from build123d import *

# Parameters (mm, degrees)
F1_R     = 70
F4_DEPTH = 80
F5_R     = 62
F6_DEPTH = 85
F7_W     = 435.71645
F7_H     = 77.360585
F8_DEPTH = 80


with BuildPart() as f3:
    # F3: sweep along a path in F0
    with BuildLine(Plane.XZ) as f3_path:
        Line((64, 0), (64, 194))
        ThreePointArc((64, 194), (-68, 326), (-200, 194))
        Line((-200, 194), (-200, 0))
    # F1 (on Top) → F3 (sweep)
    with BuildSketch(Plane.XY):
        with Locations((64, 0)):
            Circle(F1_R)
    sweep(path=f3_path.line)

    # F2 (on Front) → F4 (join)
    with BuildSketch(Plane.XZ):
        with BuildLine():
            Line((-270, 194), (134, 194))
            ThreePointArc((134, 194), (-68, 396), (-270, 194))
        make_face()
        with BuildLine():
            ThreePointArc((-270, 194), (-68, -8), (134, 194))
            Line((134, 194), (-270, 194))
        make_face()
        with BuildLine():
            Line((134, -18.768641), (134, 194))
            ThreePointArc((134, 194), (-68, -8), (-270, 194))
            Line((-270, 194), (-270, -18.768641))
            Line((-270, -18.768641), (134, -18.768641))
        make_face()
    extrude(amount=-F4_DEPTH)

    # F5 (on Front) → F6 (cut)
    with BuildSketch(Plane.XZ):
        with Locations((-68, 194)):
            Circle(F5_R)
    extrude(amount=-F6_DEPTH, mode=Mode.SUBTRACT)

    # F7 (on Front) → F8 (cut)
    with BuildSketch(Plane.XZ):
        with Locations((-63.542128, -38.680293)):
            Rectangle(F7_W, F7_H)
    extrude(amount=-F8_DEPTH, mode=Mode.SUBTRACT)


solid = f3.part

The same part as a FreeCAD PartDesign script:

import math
import FreeCAD as App
import Part
import Sketcher
from FreeCAD import Vector
Q = App.Units.Quantity

doc = App.newDocument("Part")
body = doc.addObject("PartDesign::Body", "Body")

# Sketch on XY plane
sketch1 = body.newObject("Sketcher::SketchObject", "Sketch")
sketch1.AttachmentSupport = (doc.getObject("XY_Plane"), [""])
sketch1.MapMode = "FlatFace"
sketch1.addGeometry(Part.Circle(Vector(64, 0, 0), Vector(0, 0, 1), 70), False)
sketch1.addConstraint([
    Sketcher.Constraint("PointOnObject", 0, 3, -1),
    Sketcher.Constraint("Diameter", 0, Q("140 mm")),
    Sketcher.Constraint("DistanceX", -1, 1, 0, 3, Q("64 mm")),
])

# Sketch on XZ plane
sketch2 = body.newObject("Sketcher::SketchObject", "Sketch001")
sketch2.AttachmentSupport = (doc.getObject("XZ_Plane"), [""])
sketch2.MapMode = "FlatFace"
sketch2.addGeometry([
    Part.LineSegment(Vector(64, 0, 0), Vector(64, 194, 0)),
    Part.ArcOfCircle(Part.Circle(Vector(-68, 194, 0), Vector(0, 0, 1), 132), math.radians(0), math.radians(180)),
    Part.LineSegment(Vector(-200, 194, 0), Vector(-200, 0, 0)),
], False)
sketch2.addConstraint([
    Sketcher.Constraint("Tangent", 0, 2, 1, 1),
    Sketcher.Constraint("Tangent", 1, 2, 2, 1),
    Sketcher.Constraint("Vertical", 0),
    Sketcher.Constraint("Vertical", 2),
    Sketcher.Constraint("PointOnObject", 0, 1, -1),
    Sketcher.Constraint("PointOnObject", 2, 2, -1),
    Sketcher.Constraint("Radius", 1, Q("132 mm")),
    Sketcher.Constraint("DistanceY", 0, 1, 0, 2, Q("194 mm")),
    Sketcher.Constraint("DistanceX", 1, 3, -1, 1, Q("68 mm")),
])
doc.recompute()

additivepipe = body.newObject("PartDesign::AdditivePipe", "AdditivePipe")
additivepipe.Profile = sketch1
additivepipe.Spine = (sketch2, ["Edge1", "Edge2", "Edge3"])

# Sketch on XZ plane
sketch3 = body.newObject("Sketcher::SketchObject", "Sketch002")
sketch3.AttachmentSupport = (doc.getObject("XZ_Plane"), [""])
sketch3.MapMode = "FlatFace"
sketch3.addGeometry([
    Part.ArcOfCircle(Part.Circle(Vector(-68, 194, 0), Vector(0, 0, 1), 202), math.radians(0), math.radians(180)),
    Part.LineSegment(Vector(-270, 194, 0), Vector(-270, -19, 0)),
    Part.LineSegment(Vector(-270, -19, 0), Vector(134, -19, 0)),
    Part.LineSegment(Vector(134, -19, 0), Vector(134, 194, 0)),
], False)
sketch3.addConstraint([
    Sketcher.Constraint("Tangent", 0, 2, 1, 1),
    Sketcher.Constraint("Coincident", 1, 2, 2, 1),
    Sketcher.Constraint("Coincident", 2, 2, 3, 1),
    Sketcher.Constraint("Tangent", 3, 2, 0, 1),
    Sketcher.Constraint("Vertical", 1),
    Sketcher.Constraint("Horizontal", 2),
    Sketcher.Constraint("Vertical", 3),
    Sketcher.Constraint("Radius", 0, Q("202 mm")),
    Sketcher.Constraint("DistanceX", 0, 3, -1, 1, Q("68 mm")),
    Sketcher.Constraint("DistanceY", -1, 1, 0, 3, Q("194 mm")),
    Sketcher.Constraint("DistanceY", 1, 2, 1, 1, Q("212.768641 mm")),
])
pad1 = body.newObject("PartDesign::Pad", "Pad")
pad1.Profile = sketch3
pad1.Length = 80
pad1.Reversed = True

# Sketch on XZ plane
sketch4 = body.newObject("Sketcher::SketchObject", "Sketch003")
sketch4.AttachmentSupport = (doc.getObject("XZ_Plane"), [""])
sketch4.MapMode = "FlatFace"
sketch4.addGeometry(Part.Circle(Vector(-68, 194, 0), Vector(0, 0, 1), 62), False)
sketch4.addConstraint([
    Sketcher.Constraint("Diameter", 0, Q("124 mm")),
    Sketcher.Constraint("DistanceX", 0, 3, -1, 1, Q("68 mm")),
    Sketcher.Constraint("DistanceY", -1, 1, 0, 3, Q("194 mm")),
])
pocket1 = body.newObject("PartDesign::Pocket", "Pocket")
pocket1.Profile = sketch4
pocket1.Length = 85

# Sketch on XZ plane
sketch5 = body.newObject("Sketcher::SketchObject", "Sketch004")
sketch5.AttachmentSupport = (doc.getObject("XZ_Plane"), [""])
sketch5.MapMode = "FlatFace"
sketch5.addGeometry([
    Part.LineSegment(Vector(-281, 0, 0), Vector(-281, -77, 0)),
    Part.LineSegment(Vector(-281, -77, 0), Vector(154, -77, 0)),
    Part.LineSegment(Vector(154, -77, 0), Vector(154, 0, 0)),
    Part.LineSegment(Vector(154, 0, 0), Vector(-281, 0, 0)),
], False)
sketch5.addConstraint([
    Sketcher.Constraint("Coincident", 0, 2, 1, 1),
    Sketcher.Constraint("Coincident", 1, 2, 2, 1),
    Sketcher.Constraint("Coincident", 2, 2, 3, 1),
    Sketcher.Constraint("Coincident", 3, 2, 0, 1),
    Sketcher.Constraint("Vertical", 0),
    Sketcher.Constraint("Horizontal", 1),
    Sketcher.Constraint("Vertical", 2),
    Sketcher.Constraint("Horizontal", 3),
    Sketcher.Constraint("PointOnObject", 2, 2, -1),
    Sketcher.Constraint("DistanceX", 1, 1, 1, 2, Q("435.71645 mm")),
    Sketcher.Constraint("DistanceY", 0, 2, 0, 1, Q("77.360585 mm")),
    Sketcher.Constraint("DistanceX", 0, 2, -1, 1, Q("281.400353 mm")),
])
pocket2 = body.newObject("PartDesign::Pocket", "Pocket001")
pocket2.Profile = sketch5
pocket2.Length = 80

doc.recompute()
